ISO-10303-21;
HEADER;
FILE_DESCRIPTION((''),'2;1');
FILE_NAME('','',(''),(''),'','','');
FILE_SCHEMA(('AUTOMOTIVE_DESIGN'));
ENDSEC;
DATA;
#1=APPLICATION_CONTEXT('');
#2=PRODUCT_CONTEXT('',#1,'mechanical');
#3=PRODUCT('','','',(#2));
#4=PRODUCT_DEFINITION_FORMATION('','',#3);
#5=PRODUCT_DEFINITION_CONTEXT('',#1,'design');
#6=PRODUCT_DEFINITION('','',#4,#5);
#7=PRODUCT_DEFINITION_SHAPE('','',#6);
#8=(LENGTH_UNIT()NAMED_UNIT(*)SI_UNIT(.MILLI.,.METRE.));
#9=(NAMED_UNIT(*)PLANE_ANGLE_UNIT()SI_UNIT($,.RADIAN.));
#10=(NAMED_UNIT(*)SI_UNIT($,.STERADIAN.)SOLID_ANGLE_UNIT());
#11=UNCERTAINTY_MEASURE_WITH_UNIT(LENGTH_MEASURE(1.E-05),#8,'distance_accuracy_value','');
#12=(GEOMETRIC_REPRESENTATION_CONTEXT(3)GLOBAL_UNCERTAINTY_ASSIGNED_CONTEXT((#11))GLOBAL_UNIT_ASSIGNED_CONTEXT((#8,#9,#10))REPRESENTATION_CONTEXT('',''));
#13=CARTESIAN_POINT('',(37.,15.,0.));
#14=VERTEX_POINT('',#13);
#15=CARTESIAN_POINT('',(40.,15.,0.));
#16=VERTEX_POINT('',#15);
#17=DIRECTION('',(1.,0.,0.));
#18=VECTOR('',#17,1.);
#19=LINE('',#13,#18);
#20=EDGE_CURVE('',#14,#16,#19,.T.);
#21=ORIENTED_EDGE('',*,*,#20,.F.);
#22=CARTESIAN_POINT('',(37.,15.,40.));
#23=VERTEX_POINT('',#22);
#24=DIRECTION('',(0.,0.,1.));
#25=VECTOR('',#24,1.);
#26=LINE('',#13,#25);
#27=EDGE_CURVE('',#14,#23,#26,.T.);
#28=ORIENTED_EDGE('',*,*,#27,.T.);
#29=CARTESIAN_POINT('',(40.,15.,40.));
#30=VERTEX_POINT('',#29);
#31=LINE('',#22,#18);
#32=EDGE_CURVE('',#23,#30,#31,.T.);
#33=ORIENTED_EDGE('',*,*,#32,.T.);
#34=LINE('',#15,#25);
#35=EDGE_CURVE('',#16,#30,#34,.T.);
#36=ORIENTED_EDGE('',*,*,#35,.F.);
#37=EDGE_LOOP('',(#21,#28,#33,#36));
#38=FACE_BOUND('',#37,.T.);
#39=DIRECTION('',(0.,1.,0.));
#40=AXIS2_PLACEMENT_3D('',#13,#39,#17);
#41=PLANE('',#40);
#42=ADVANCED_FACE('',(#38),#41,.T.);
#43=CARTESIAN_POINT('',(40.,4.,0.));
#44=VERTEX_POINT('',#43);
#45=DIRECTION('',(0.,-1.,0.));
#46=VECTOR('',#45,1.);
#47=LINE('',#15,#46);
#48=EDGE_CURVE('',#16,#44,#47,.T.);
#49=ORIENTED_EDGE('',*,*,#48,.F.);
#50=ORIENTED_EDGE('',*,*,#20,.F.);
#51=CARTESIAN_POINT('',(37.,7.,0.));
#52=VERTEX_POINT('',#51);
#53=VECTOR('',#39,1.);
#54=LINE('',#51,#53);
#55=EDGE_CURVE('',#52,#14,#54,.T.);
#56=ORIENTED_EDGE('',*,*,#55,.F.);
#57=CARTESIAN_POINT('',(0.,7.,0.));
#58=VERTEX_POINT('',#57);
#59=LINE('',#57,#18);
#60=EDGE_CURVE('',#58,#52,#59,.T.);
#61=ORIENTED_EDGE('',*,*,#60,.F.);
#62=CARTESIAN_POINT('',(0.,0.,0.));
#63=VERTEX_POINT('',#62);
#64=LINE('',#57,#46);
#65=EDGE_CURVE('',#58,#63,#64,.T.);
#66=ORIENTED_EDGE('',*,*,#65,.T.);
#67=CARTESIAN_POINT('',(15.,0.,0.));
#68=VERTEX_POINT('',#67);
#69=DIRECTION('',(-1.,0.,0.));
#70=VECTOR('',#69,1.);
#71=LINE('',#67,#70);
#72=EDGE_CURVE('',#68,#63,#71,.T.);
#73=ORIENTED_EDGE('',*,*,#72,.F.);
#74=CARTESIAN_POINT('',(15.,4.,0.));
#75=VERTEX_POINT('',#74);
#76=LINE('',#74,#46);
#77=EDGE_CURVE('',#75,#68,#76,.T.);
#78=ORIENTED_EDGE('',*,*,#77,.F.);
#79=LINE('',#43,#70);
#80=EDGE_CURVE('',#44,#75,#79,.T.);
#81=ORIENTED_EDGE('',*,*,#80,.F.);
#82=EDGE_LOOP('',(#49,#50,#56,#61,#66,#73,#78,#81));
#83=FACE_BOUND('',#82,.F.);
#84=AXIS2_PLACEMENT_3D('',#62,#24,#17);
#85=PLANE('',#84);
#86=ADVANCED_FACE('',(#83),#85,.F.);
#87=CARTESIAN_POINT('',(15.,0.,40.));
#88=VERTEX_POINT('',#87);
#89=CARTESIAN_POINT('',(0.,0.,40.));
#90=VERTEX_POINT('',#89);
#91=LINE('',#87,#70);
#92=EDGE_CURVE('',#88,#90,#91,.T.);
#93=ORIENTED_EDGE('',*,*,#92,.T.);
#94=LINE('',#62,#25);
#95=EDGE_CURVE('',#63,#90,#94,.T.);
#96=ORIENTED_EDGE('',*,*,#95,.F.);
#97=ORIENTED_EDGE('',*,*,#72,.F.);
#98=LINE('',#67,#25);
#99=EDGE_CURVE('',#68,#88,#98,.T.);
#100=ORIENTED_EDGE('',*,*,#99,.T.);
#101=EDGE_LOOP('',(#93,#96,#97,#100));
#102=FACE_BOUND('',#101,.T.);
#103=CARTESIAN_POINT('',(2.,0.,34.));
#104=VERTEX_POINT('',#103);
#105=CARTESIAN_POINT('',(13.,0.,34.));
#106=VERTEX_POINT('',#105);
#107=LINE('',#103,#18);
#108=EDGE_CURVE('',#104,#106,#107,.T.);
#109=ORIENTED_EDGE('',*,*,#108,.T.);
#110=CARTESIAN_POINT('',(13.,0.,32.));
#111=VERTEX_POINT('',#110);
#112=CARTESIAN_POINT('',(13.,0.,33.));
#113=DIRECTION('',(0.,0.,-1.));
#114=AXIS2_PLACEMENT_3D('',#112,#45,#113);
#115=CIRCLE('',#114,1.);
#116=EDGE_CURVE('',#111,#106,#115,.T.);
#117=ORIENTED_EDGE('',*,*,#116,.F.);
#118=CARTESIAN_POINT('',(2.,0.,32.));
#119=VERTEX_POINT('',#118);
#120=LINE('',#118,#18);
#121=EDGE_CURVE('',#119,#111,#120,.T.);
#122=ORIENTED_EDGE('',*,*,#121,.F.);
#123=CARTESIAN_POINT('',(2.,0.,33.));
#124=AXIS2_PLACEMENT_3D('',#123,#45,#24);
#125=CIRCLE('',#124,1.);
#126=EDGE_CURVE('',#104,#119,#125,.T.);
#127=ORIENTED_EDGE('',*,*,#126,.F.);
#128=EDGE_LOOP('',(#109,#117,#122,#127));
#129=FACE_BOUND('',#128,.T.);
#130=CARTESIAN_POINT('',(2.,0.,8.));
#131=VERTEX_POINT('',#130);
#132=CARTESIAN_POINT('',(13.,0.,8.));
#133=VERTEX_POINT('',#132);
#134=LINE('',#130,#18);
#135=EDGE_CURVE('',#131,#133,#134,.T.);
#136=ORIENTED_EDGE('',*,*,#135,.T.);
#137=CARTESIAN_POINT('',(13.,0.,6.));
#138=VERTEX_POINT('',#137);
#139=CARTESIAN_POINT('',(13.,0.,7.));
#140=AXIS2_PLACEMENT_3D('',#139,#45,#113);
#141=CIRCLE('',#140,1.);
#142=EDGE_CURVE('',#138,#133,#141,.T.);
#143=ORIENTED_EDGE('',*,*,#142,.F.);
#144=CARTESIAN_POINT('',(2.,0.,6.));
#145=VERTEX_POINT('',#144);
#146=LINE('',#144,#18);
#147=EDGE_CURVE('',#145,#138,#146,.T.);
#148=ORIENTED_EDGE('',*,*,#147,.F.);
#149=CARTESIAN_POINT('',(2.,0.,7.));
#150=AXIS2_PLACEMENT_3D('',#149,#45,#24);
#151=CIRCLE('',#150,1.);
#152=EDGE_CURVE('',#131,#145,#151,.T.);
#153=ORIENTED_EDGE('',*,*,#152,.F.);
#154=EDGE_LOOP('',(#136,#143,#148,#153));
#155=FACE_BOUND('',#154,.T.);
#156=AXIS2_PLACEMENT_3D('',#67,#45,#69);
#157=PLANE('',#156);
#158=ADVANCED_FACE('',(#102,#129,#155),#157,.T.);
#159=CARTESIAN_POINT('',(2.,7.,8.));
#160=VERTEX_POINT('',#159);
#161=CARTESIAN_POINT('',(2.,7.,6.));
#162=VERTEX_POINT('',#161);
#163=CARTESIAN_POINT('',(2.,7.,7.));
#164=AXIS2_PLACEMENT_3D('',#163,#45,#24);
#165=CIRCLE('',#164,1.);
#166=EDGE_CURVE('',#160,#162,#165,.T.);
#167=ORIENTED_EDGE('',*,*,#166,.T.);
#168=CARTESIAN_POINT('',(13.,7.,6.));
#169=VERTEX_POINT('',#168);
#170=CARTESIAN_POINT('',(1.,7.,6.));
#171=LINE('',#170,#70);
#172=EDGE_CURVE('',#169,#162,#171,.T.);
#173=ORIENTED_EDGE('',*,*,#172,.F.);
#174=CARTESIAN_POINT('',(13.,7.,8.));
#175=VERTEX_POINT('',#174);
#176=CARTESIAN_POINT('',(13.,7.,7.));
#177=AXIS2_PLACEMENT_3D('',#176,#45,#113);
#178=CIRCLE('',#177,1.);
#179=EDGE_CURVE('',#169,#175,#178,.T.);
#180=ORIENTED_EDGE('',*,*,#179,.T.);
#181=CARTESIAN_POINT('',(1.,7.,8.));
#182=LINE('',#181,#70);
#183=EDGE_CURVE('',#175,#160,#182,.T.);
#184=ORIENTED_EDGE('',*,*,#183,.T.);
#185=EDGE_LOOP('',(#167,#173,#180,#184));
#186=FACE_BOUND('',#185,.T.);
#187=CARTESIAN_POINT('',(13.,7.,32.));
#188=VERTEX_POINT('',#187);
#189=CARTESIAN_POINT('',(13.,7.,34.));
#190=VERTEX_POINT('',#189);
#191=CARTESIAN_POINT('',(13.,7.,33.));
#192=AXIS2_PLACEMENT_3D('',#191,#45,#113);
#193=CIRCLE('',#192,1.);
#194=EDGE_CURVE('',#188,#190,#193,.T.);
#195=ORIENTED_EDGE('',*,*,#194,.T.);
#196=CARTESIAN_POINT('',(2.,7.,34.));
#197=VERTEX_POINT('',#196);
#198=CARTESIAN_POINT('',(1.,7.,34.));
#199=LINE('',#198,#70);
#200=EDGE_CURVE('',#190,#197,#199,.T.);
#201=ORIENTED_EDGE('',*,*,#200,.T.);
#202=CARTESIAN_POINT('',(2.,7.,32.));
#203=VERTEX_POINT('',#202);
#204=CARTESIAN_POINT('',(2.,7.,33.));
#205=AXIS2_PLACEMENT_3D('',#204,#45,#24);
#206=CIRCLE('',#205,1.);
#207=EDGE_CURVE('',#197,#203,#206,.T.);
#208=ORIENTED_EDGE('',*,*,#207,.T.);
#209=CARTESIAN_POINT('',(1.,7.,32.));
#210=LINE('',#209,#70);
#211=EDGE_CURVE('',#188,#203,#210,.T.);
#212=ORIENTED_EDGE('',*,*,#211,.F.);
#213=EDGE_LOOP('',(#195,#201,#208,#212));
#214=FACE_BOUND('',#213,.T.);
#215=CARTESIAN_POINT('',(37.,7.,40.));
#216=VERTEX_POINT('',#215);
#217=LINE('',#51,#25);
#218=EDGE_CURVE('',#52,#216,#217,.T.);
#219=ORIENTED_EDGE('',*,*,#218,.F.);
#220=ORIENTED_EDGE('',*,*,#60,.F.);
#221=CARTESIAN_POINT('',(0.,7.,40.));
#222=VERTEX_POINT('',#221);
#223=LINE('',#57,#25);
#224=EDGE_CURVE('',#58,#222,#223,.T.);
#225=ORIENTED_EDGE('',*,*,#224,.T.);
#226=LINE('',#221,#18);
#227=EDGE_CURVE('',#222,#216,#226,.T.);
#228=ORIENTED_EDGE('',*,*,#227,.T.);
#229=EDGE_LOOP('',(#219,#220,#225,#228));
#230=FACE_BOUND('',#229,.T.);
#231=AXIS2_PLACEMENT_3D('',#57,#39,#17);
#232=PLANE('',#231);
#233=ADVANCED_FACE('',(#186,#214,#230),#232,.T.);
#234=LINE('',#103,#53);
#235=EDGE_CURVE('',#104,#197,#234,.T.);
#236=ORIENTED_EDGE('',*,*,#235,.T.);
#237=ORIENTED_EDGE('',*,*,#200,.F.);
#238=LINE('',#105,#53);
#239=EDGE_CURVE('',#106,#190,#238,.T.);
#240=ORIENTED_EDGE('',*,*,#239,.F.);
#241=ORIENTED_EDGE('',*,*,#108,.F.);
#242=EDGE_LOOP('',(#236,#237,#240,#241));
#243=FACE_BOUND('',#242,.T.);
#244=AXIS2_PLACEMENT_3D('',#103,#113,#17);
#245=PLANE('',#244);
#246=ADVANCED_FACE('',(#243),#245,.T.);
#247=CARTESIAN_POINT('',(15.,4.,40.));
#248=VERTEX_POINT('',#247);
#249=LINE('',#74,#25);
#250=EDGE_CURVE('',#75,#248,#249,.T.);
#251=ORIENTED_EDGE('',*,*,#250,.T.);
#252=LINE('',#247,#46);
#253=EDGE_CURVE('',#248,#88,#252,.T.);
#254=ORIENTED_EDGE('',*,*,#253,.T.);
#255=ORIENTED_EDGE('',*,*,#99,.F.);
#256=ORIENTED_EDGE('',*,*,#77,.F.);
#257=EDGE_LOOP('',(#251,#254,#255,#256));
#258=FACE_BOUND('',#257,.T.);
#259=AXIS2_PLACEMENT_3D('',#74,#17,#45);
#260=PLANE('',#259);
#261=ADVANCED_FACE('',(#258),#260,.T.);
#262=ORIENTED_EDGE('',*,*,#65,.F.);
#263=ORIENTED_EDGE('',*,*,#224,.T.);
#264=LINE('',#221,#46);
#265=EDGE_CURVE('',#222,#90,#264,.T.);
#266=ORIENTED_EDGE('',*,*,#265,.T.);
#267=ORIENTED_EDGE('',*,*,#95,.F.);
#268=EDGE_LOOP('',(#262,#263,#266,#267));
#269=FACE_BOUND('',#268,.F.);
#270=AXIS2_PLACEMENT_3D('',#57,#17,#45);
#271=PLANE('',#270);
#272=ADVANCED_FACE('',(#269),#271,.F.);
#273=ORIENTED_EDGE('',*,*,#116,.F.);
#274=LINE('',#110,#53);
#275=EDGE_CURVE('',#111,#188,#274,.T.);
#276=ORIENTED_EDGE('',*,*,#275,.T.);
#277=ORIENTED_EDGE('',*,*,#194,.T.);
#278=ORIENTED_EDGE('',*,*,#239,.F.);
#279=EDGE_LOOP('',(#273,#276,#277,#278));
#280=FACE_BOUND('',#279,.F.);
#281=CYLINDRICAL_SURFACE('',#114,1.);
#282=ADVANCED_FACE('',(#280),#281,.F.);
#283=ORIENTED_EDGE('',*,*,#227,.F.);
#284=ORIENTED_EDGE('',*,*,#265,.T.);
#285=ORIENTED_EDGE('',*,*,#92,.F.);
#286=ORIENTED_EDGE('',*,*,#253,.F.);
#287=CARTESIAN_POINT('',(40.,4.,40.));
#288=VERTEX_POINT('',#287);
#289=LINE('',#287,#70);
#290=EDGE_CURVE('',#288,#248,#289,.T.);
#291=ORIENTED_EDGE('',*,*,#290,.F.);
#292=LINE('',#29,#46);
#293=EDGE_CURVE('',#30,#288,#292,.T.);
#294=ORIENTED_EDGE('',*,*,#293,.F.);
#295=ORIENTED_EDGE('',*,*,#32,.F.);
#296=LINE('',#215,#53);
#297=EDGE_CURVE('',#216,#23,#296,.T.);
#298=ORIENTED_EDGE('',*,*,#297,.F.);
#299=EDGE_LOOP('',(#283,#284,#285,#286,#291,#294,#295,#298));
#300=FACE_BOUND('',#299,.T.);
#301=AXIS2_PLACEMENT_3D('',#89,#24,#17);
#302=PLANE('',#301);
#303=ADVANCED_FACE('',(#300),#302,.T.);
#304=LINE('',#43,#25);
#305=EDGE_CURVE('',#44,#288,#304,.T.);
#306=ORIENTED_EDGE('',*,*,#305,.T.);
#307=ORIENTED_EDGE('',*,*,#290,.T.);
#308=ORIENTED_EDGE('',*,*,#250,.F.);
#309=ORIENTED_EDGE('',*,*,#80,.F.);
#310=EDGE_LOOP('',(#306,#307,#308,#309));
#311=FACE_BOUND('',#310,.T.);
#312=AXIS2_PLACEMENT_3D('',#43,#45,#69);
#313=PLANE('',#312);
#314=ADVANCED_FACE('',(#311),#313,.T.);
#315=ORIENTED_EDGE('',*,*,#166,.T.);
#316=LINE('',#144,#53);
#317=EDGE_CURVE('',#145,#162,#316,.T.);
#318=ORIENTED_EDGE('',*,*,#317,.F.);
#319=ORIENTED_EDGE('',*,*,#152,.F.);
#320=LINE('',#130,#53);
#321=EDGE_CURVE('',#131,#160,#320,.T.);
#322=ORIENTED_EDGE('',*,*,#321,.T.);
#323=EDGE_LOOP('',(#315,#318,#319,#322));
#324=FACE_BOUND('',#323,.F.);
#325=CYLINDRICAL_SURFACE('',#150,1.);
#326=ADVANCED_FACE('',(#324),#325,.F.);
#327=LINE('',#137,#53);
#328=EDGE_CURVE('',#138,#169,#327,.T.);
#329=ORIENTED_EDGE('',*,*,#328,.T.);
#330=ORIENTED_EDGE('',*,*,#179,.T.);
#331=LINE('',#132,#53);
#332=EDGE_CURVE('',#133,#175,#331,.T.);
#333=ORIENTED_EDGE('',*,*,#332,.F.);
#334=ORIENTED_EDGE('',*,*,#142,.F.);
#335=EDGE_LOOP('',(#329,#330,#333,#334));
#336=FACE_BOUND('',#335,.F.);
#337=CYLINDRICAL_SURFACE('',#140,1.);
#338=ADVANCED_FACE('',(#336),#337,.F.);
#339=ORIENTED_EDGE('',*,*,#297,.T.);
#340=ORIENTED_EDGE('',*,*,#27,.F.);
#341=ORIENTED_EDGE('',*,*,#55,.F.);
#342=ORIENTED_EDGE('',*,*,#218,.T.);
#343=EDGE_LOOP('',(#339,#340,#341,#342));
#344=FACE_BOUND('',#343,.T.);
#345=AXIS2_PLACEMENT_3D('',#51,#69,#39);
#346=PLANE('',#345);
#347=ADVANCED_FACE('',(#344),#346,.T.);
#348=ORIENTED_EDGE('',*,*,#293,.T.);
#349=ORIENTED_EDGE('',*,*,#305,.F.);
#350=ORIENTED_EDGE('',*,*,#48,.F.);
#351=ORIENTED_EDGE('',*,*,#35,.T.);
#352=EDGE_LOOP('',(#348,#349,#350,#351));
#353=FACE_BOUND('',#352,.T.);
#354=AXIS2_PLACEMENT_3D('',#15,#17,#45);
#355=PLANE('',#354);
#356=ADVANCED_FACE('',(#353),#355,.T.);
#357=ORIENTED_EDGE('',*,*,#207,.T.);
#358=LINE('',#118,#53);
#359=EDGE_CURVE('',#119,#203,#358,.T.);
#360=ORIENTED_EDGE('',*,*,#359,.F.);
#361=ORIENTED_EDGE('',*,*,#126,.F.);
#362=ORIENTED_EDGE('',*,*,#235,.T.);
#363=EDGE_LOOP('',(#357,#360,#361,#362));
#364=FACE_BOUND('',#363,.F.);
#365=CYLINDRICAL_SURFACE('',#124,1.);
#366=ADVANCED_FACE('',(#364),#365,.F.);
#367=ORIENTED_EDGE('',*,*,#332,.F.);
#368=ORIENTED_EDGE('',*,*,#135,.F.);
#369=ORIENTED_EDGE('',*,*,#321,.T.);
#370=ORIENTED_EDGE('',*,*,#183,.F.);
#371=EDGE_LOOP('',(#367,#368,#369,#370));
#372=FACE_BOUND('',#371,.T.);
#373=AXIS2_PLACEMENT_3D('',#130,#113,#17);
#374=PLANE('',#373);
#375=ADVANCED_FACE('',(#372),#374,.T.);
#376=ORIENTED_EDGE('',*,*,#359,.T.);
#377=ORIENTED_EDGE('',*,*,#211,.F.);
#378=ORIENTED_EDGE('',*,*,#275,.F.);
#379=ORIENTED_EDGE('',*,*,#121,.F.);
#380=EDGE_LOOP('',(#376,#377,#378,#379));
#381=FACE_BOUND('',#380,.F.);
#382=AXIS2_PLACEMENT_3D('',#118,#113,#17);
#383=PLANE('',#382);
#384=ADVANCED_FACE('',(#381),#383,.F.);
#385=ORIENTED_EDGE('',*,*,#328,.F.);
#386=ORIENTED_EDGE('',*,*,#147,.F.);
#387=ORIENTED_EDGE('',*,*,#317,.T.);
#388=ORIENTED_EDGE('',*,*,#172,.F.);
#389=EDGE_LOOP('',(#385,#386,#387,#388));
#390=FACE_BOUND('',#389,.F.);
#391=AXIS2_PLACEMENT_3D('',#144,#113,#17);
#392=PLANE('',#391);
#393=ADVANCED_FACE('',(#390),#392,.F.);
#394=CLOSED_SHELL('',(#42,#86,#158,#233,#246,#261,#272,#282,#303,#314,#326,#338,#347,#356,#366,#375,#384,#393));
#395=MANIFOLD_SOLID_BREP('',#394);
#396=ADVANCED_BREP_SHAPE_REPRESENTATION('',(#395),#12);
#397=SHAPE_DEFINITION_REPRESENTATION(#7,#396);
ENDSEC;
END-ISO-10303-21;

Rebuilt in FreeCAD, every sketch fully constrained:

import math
import FreeCAD as App
import Part
import Sketcher

V = App.Vector


def add_polygon(sketch, points):
    """Adds a closed chain of lines whose ends are joined by coincident constraints."""
    first, n = sketch.GeometryCount, len(points)
    for a, b in zip(points, points[1:] + points[:1]):
        sketch.addGeometry(Part.LineSegment(App.Vector(*a, 0), App.Vector(*b, 0)), False)
    for i in range(n):
        sketch.addConstraint(Sketcher.Constraint("Coincident", first + i, 2, first + (i + 1) % n, 1))

doc = App.newDocument("Part")
body = doc.addObject("PartDesign::Body", "Body")

# Sketch on XY plane
sketch1 = body.newObject("Sketcher::SketchObject", "Sketch")
sketch1.AttachmentSupport = (doc.getObject("XY_Plane"), [""])
sketch1.MapMode = "FlatFace"
add_polygon(sketch1, [(40, 4), (40, 15), (37, 15), (37, 7), (0, 7), (0, 0), (15, 0), (15, 4)])  # lines 0-7
sketch1.addConstraint(Sketcher.Constraint("Vertical", 0))
sketch1.addConstraint(Sketcher.Constraint("Horizontal", 1))
sketch1.addConstraint(Sketcher.Constraint("Vertical", 2))
sketch1.addConstraint(Sketcher.Constraint("Horizontal", 3))
sketch1.addConstraint(Sketcher.Constraint("Vertical", 4))
sketch1.addConstraint(Sketcher.Constraint("Horizontal", 5))
sketch1.addConstraint(Sketcher.Constraint("Vertical", 6))
sketch1.addConstraint(Sketcher.Constraint("Horizontal", 7))
sketch1.addConstraint(Sketcher.Constraint("Coincident", 4, 2, -1, 1))
sketch1.addConstraint(Sketcher.Constraint("DistanceX", 1, 2, 1, 1, 3.0))
sketch1.addConstraint(Sketcher.Constraint("DistanceX", 5, 1, 5, 2, 15.0))
sketch1.addConstraint(Sketcher.Constraint("DistanceY", 6, 1, 6, 2, 4.0))
sketch1.addConstraint(Sketcher.Constraint("DistanceX", -1, 1, 0, 2, 40.0))
sketch1.addConstraint(Sketcher.Constraint("DistanceY", -1, 1, 0, 2, 15.0))
sketch1.addConstraint(Sketcher.Constraint("DistanceY", 6, 2, 3, 2, 3.0))
pad1 = body.newObject("PartDesign::Pad", "Pad")
pad1.Profile = sketch1
pad1.Length = 40

# Sketch on XZ plane
sketch2 = body.newObject("Sketcher::SketchObject", "Sketch001")
sketch2.AttachmentSupport = (doc.getObject("XZ_Plane"), [""])
sketch2.MapMode = "FlatFace"
sketch2.addGeometry(Part.LineSegment(V(13, 34, 0), V(2, 34, 0)), False)
sketch2.addGeometry(Part.ArcOfCircle(Part.Circle(V(2, 33, 0), V(0, 0, 1), 1), math.radians(90), math.radians(270)), False)
sketch2.addGeometry(Part.LineSegment(V(2, 32, 0), V(13, 32, 0)), False)
sketch2.addGeometry(Part.ArcOfCircle(Part.Circle(V(13, 33, 0), V(0, 0, 1), 1), math.radians(-90), math.radians(90)), False)
sketch2.addGeometry(Part.LineSegment(V(13, 8, 0), V(2, 8, 0)), False)
sketch2.addGeometry(Part.ArcOfCircle(Part.Circle(V(2, 7, 0), V(0, 0, 1), 1), math.radians(90), math.radians(270)), False)
sketch2.addGeometry(Part.LineSegment(V(2, 6, 0), V(13, 6, 0)), False)
sketch2.addGeometry(Part.ArcOfCircle(Part.Circle(V(13, 7, 0), V(0, 0, 1), 1), math.radians(-90), math.radians(90)), False)
sketch2.addConstraint(Sketcher.Constraint("Tangent", 0, 2, 1, 1))
sketch2.addConstraint(Sketcher.Constraint("Tangent", 1, 2, 2, 1))
sketch2.addConstraint(Sketcher.Constraint("Tangent", 2, 2, 3, 1))
sketch2.addConstraint(Sketcher.Constraint("Tangent", 3, 2, 0, 1))
sketch2.addConstraint(Sketcher.Constraint("Tangent", 4, 2, 5, 1))
sketch2.addConstraint(Sketcher.Constraint("Tangent", 5, 2, 6, 1))
sketch2.addConstraint(Sketcher.Constraint("Tangent", 6, 2, 7, 1))
sketch2.addConstraint(Sketcher.Constraint("Tangent", 7, 2, 4, 1))
sketch2.addConstraint(Sketcher.Constraint("Horizontal", 0))
sketch2.addConstraint(Sketcher.Constraint("Horizontal", 2))
sketch2.addConstraint(Sketcher.Constraint("Horizontal", 4))
sketch2.addConstraint(Sketcher.Constraint("Horizontal", 6))
sketch2.addConstraint(Sketcher.Constraint("Equal", 3, 5))
sketch2.addConstraint(Sketcher.Constraint("Vertical", 1, 3, 5, 3))
sketch2.addConstraint(Sketcher.Constraint("Vertical", 3, 3, 7, 3))
sketch2.addConstraint(Sketcher.Constraint("Radius", 1, 1.0))
sketch2.addConstraint(Sketcher.Constraint("DistanceX", -1, 1, 1, 3, 2.0))
sketch2.addConstraint(Sketcher.Constraint("DistanceX", -1, 1, 3, 3, 13.0))
sketch2.addConstraint(Sketcher.Constraint("DistanceY", -1, 1, 1, 3, 33.0))
sketch2.addConstraint(Sketcher.Constraint("DistanceY", -1, 1, 5, 3, 7.0))
pocket1 = body.newObject("PartDesign::Pocket", "Pocket")
pocket1.Profile = sketch2
pocket1.Length = 30

doc.recompute()
